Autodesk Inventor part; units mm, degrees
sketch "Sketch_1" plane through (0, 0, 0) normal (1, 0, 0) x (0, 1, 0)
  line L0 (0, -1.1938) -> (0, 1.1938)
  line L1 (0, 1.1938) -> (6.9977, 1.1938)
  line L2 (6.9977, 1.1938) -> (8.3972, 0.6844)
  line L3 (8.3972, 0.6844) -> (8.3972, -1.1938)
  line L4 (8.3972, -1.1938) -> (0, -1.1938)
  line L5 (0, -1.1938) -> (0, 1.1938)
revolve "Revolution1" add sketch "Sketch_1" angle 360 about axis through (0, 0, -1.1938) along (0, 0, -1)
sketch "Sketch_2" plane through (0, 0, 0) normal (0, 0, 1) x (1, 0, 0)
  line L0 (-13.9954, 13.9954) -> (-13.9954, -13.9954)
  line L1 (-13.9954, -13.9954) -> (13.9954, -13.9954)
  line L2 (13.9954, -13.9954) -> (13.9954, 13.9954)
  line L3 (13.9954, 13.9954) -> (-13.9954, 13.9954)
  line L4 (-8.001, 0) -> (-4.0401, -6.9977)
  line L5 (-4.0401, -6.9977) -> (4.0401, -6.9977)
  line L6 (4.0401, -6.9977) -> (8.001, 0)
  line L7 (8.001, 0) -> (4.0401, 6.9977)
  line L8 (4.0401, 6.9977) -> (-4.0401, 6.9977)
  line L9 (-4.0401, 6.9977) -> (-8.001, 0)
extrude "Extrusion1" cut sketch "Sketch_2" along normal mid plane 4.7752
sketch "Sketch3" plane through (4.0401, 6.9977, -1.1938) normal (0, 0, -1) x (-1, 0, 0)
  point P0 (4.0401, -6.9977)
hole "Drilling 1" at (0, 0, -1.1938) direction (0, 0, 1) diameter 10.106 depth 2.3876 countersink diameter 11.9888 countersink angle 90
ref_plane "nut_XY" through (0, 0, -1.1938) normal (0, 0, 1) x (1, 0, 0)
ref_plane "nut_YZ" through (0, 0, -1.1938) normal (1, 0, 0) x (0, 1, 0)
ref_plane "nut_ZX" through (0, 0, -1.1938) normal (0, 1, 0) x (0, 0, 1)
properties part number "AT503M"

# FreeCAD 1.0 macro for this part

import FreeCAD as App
import Part
import Sketcher
from FreeCAD import Vector
Q = App.Units.Quantity

doc = App.newDocument("Part")
body = doc.addObject("PartDesign::Body", "Body")

sketch1 = body.newObject("Sketcher::SketchObject", "Sketch")
sketch1.AttachmentSupport = (doc.getObject("YZ_Plane"), [""])
sketch1.MapMode = "FlatFace"
sketch1.addGeometry([
    Part.LineSegment(Vector(0, 1.1938, 0), Vector(0, -1.1938, 0)),
    Part.LineSegment(Vector(0, -1.1938, 0), Vector(8.3972, -1.1938, 0)),
    Part.LineSegment(Vector(8.3972, -1.1938, 0), Vector(8.3972, 0.6844, 0)),
    Part.LineSegment(Vector(8.3972, 0.6844, 0), Vector(6.9977, 1.1938, 0)),
    Part.LineSegment(Vector(6.9977, 1.1938, 0), Vector(0, 1.1938, 0)),
], False)
sketch1.addConstraint([
    Sketcher.Constraint("Coincident", 0, 2, 1, 1),
    Sketcher.Constraint("Coincident", 1, 2, 2, 1),
    Sketcher.Constraint("Coincident", 2, 2, 3, 1),
    Sketcher.Constraint("Coincident", 3, 2, 4, 1),
    Sketcher.Constraint("Coincident", 4, 2, 0, 1),
    Sketcher.Constraint("Vertical", 0),
    Sketcher.Constraint("Horizontal", 1),
    Sketcher.Constraint("Vertical", 2),
    Sketcher.Constraint("Horizontal", 4),
    Sketcher.Constraint("Symmetric", 0, 2, 4, 2, -1, 1),
    Sketcher.Constraint("Angle", 3, Q("159.9991 deg")),
    Sketcher.Constraint("DistanceY", 0, 2, 0, 1, Q("0.094 in")),
    Sketcher.Constraint("DistanceX", 1, 1, 1, 2, Q("0.3306 in")),
    Sketcher.Constraint("DistanceX", 4, 2, 4, 1, Q("0.2755 in")),
])
revolution = body.newObject("PartDesign::Revolution", "Revolution")
revolution.Profile = sketch1
revolution.ReferenceAxis = (sketch1, ["V_Axis"])
revolution.Angle = 360

sketch2 = body.newObject("Sketcher::SketchObject", "Sketch001")
sketch2.AttachmentSupport = (doc.getObject("XY_Plane"), [""])
sketch2.MapMode = "FlatFace"
sketch2.addGeometry([
    Part.LineSegment(Vector(13.9954, 13.9954, 0), Vector(-13.9954, 13.9954, 0)),
    Part.LineSegment(Vector(-13.9954, 13.9954, 0), Vector(-13.9954, -13.9954, 0)),
    Part.LineSegment(Vector(-13.9954, -13.9954, 0), Vector(13.9954, -13.9954, 0)),
    Part.LineSegment(Vector(13.9954, -13.9954, 0), Vector(13.9954, 13.9954, 0)),
    Part.LineSegment(Vector(-4.0401, -6.9977, 0), Vector(-8.001, 0, 0)),
    Part.LineSegment(Vector(-8.001, 0, 0), Vector(-4.0401, 6.9977, 0)),
    Part.LineSegment(Vector(-4.0401, 6.9977, 0), Vector(4.0401, 6.9977, 0)),
    Part.LineSegment(Vector(4.0401, 6.9977, 0), Vector(8.001, 0, 0)),
    Part.LineSegment(Vector(8.001, 0, 0), Vector(4.0401, -6.9977, 0)),
    Part.LineSegment(Vector(4.0401, -6.9977, 0), Vector(-4.0401, -6.9977, 0)),
], False)
sketch2.addConstraint([
    Sketcher.Constraint("Coincident", 0, 2, 1, 1),
    Sketcher.Constraint("Coincident", 1, 2, 2, 1),
    Sketcher.Constraint("Coincident", 2, 2, 3, 1),
    Sketcher.Constraint("Coincident", 3, 2, 0, 1),
    Sketcher.Constraint("Coincident", 4, 2, 5, 1),
    Sketcher.Constraint("Coincident", 5, 2, 6, 1),
    Sketcher.Constraint("Coincident", 6, 2, 7, 1),
    Sketcher.Constraint("Coincident", 7, 2, 8, 1),
    Sketcher.Constraint("Coincident", 8, 2, 9, 1),
    Sketcher.Constraint("Coincident", 9, 2, 4, 1),
    Sketcher.Constraint("Horizontal", 0),
    Sketcher.Constraint("Vertical", 1),
    Sketcher.Constraint("Horizontal", 2),
    Sketcher.Constraint("Vertical", 3),
    Sketcher.Constraint("Horizontal", 6),
    Sketcher.Constraint("Horizontal", 9),
    Sketcher.Constraint("Symmetric", 0, 2, 2, 2, -1, 1),
    Sketcher.Constraint("Symmetric", 4, 2, 7, 2, -1, 1),
    Sketcher.Constraint("Symmetric", 5, 2, 8, 2, -1, 1),
    Sketcher.Constraint("PointOnObject", 4, 2, -1),
    Sketcher.Constraint("Parallel", 4, 7),
    Sketcher.Constraint("Vertical", 6, 2, 8, 2),
    Sketcher.Constraint("Equal", 2, 1),
    Sketcher.Constraint("DistanceX", 0, 2, 0, 1, Q("1.102 in")),
    Sketcher.Constraint("Angle", 4, Q("119.511 deg")),
    Sketcher.Constraint("DistanceX", 4, 2, 7, 2, Q("0.63 in")),
    Sketcher.Constraint("DistanceY", 8, 2, 6, 2, Q("0.551 in")),
])
pocket1 = body.newObject("PartDesign::Pocket", "Pocket")
pocket1.Profile = sketch2
pocket1.Length = Q("0.188 in")
pocket1.Midplane = True

sketch3 = body.newObject("Sketcher::SketchObject", "Sketch002")
sketch3.AttachmentSupport = (doc.getObject("XY_Plane"), [""])
sketch3.MapMode = "FlatFace"
sketch3.AttachmentOffset = App.Placement(Vector(0, 0, -0.047 * 25.4), App.Rotation())
sketch3.addGeometry(Part.Circle(Vector(0, 0, 0), Vector(0, 0, 1), 5.053), False)
sketch3.addConstraint([
    Sketcher.Constraint("Coincident", 0, 3, -1, 1),
    Sketcher.Constraint("Diameter", 0, 10.106),
])
doc.recompute()
hole = body.newObject("PartDesign::Hole", "Hole")
hole.Profile = sketch3
hole.ThreadType = "None"
hole.Diameter = 10.106
hole.DepthType = "Dimension"
hole.Depth = Q("0.094 in")
hole.DrillPoint = "Flat"
hole.HoleCutType = "Countersink"
hole.HoleCutDiameter = Q("0.472 in")
hole.HoleCutCountersinkAngle = 90
hole.Reversed = True

doc.recompute()
